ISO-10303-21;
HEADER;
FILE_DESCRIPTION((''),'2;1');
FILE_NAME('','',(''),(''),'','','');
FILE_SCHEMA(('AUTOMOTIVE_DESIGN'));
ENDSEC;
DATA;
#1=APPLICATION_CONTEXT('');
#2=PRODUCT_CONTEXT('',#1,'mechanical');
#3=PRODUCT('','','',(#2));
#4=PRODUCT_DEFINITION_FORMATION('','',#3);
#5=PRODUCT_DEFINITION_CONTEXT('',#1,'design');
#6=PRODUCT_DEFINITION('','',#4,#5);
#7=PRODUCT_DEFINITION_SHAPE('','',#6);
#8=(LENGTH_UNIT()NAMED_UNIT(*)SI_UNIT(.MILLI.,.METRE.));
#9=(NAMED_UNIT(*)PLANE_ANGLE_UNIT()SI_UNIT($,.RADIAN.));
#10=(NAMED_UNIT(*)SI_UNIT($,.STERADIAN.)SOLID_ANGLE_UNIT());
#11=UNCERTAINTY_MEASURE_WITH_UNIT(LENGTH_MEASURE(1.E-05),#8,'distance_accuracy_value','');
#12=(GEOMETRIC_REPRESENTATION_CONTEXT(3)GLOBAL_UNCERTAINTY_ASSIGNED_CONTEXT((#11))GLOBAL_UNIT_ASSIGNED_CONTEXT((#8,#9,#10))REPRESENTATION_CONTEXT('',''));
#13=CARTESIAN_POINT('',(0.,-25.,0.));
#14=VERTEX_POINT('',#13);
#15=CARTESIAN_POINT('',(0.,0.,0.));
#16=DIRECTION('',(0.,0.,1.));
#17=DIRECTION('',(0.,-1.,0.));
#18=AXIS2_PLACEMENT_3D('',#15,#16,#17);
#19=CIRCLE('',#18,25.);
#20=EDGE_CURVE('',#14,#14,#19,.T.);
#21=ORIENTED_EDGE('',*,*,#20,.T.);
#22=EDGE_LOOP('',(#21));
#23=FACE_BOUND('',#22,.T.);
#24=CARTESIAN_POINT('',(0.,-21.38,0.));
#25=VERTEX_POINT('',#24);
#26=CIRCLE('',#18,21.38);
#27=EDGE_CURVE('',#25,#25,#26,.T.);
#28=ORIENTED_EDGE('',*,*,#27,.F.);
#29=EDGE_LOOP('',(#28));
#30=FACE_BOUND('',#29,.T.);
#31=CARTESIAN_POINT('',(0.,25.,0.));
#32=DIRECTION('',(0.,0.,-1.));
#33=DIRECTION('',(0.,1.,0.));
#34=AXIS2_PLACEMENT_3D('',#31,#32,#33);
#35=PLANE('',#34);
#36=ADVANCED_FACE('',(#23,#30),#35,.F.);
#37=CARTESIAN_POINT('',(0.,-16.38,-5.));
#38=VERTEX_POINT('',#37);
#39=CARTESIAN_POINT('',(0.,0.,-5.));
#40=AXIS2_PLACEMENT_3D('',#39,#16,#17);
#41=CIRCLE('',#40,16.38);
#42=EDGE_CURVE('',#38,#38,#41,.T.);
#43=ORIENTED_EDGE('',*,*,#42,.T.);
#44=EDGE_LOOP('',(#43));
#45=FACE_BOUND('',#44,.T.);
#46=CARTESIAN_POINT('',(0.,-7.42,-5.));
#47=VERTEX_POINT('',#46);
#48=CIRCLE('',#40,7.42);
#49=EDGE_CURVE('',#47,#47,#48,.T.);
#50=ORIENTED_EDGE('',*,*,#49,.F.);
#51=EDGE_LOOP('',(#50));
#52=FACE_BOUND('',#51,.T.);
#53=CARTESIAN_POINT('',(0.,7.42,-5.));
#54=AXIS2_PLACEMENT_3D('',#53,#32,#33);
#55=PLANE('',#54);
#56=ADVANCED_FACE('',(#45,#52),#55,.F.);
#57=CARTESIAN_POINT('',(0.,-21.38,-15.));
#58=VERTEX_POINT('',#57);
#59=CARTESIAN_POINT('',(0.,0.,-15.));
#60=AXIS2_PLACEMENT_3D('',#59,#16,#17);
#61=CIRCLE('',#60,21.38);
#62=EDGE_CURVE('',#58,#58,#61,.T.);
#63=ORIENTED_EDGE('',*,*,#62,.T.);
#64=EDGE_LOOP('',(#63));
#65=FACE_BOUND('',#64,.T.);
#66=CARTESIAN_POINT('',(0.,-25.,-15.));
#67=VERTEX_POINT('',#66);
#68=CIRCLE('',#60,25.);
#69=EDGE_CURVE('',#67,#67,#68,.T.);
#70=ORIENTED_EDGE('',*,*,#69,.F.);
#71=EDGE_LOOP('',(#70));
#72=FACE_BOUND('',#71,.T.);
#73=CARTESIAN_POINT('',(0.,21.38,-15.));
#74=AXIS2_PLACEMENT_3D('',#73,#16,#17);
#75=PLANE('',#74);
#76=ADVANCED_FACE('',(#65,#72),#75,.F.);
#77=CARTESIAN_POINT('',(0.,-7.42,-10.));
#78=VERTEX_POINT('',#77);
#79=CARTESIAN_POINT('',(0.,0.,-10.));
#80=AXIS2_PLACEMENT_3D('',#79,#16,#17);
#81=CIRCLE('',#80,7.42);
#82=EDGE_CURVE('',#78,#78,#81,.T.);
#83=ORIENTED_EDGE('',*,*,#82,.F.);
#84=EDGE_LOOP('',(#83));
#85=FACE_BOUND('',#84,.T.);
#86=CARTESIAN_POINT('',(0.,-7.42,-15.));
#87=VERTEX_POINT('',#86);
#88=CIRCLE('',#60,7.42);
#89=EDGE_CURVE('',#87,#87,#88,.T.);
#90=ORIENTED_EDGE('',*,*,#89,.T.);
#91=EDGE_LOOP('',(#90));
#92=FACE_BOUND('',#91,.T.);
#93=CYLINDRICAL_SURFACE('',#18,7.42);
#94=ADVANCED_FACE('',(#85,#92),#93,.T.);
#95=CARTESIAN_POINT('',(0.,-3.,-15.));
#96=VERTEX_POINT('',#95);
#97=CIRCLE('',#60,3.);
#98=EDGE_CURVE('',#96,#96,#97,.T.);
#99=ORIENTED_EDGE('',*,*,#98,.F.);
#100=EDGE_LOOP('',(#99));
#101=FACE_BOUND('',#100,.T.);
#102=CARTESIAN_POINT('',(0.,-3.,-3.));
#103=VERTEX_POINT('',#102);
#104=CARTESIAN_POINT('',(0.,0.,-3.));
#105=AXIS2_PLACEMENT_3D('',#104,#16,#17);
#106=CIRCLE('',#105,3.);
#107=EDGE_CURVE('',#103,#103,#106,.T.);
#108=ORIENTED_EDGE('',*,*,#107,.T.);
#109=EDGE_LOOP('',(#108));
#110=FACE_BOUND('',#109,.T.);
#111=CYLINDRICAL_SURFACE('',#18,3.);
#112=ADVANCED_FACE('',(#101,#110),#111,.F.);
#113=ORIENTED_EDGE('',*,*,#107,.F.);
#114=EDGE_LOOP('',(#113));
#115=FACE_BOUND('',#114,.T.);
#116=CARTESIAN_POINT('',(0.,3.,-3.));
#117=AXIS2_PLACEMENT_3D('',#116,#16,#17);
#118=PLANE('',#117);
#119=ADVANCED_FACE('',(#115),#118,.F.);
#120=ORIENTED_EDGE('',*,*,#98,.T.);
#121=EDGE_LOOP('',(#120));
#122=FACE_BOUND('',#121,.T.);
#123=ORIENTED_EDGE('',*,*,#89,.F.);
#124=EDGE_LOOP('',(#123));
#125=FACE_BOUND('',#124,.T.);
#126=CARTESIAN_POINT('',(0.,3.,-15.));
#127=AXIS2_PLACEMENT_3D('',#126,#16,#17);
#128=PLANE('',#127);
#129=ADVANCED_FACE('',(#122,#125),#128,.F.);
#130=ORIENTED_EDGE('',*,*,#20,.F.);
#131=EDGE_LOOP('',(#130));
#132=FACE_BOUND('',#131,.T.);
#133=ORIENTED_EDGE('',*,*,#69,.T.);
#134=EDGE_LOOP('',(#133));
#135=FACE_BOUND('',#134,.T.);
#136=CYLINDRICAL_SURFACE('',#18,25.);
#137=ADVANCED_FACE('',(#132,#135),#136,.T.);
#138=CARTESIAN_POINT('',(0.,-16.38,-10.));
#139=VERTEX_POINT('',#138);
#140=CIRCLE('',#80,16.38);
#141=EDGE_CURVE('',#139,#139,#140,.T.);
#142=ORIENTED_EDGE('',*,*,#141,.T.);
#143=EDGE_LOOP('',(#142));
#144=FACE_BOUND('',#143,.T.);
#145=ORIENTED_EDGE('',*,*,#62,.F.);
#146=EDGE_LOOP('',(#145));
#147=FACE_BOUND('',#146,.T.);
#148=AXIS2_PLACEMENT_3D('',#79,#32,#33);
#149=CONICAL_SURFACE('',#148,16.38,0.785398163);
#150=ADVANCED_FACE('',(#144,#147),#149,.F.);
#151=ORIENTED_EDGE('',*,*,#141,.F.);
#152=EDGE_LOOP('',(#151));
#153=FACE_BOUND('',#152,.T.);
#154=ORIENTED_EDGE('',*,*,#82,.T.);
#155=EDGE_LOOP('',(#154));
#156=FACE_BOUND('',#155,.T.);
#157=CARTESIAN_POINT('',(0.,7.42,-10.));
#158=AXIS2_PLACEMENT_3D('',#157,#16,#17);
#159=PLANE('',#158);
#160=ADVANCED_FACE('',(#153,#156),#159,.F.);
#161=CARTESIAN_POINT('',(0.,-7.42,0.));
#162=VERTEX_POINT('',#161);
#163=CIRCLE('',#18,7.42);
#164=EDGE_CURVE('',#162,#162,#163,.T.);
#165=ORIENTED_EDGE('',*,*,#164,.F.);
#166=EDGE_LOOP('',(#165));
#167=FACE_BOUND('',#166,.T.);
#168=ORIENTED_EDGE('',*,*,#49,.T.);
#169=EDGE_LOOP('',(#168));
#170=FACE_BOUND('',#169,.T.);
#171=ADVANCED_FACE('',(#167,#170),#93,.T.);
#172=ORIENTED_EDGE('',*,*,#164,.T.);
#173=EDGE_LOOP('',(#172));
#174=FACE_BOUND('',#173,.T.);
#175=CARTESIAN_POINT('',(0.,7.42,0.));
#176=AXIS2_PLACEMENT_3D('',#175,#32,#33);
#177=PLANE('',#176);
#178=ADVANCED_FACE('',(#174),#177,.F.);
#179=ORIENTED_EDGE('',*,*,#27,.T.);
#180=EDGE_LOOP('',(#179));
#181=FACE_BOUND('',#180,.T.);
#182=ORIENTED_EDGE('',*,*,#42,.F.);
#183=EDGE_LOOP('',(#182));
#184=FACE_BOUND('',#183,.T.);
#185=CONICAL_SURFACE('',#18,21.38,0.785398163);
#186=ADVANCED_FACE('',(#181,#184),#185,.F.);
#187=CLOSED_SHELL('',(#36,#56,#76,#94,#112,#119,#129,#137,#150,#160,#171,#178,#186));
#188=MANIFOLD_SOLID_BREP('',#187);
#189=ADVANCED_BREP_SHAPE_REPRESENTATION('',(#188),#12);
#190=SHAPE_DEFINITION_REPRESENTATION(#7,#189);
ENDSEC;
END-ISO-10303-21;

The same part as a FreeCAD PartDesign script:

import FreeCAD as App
import Part
import Sketcher
from FreeCAD import Vector


def add_polygon(sketch, points):
    """Adds a closed chain of lines whose ends are joined by coincident constraints."""
    first, n = sketch.GeometryCount, len(points)
    for a, b in zip(points, points[1:] + points[:1]):
        sketch.addGeometry(Part.LineSegment(App.Vector(*a, 0), App.Vector(*b, 0)), False)
    for i in range(n):
        sketch.addConstraint(Sketcher.Constraint("Coincident", first + i, 2, first + (i + 1) % n, 1))

doc = App.newDocument("Part")
body = doc.addObject("PartDesign::Body", "Body")

# Sketch on YZ plane
sketch1 = body.newObject("Sketcher::SketchObject", "Sketch")
sketch1.AttachmentSupport = (doc.getObject("YZ_Plane"), [""])
sketch1.MapMode = "FlatFace"
add_polygon(sketch1, [(0, 0), (0, -3), (3, -3), (3, -15), (7.42, -15), (7.42, -10), (16.38, -10), (21.38, -15), (25, -15), (25, 0), (21.38, 0), (16.38, -5), (7.42, -5), (7.42, 0)])  # lines 0-13
sketch1.addConstraint([
    Sketcher.Constraint("Vertical", 0),
    Sketcher.Constraint("Horizontal", 1),
    Sketcher.Constraint("Vertical", 2),
    Sketcher.Constraint("Horizontal", 3),
    Sketcher.Constraint("Vertical", 4),
    Sketcher.Constraint("Horizontal", 5),
    Sketcher.Constraint("Horizontal", 7),
    Sketcher.Constraint("Vertical", 8),
    Sketcher.Constraint("Horizontal", 9),
    Sketcher.Constraint("Horizontal", 11),
    Sketcher.Constraint("Vertical", 12),
    Sketcher.Constraint("Horizontal", 13),
    Sketcher.Constraint("Coincident", 13, 2, -1, 1),
    Sketcher.Constraint("PointOnObject", 8, 2, -1),
    Sketcher.Constraint("Perpendicular", 6, 10),
    Sketcher.Constraint("Horizontal", 3, 2, 6, 2),
    Sketcher.Constraint("Vertical", 6, 2, 9, 2),
    Sketcher.Constraint("Vertical", 5, 2, 10, 2),
    Sketcher.Constraint("Vertical", 4, 2, 11, 2),
    Sketcher.Constraint("Equal", 1, 0),
    Sketcher.Constraint("Equal", 4, 12),
    Sketcher.Constraint("DistanceX", 1, 1, 1, 2, 3.0),
    Sketcher.Constraint("DistanceY", 2, 2, 2, 1, 12.0),
    Sketcher.Constraint("DistanceY", 4, 1, 4, 2, 5.0),
    Sketcher.Constraint("DistanceX", -1, 1, 7, 2, 25.0),
    Sketcher.Constraint("DistanceX", 3, 1, 3, 2, 4.42),
    Sketcher.Constraint("DistanceX", 5, 1, 5, 2, 8.96),
])
revolution = body.newObject("PartDesign::Revolution", "Revolution")
revolution.Profile = sketch1
revolution.ReferenceAxis = (sketch1, ["V_Axis"])
revolution.Angle = 360

doc.recompute()
